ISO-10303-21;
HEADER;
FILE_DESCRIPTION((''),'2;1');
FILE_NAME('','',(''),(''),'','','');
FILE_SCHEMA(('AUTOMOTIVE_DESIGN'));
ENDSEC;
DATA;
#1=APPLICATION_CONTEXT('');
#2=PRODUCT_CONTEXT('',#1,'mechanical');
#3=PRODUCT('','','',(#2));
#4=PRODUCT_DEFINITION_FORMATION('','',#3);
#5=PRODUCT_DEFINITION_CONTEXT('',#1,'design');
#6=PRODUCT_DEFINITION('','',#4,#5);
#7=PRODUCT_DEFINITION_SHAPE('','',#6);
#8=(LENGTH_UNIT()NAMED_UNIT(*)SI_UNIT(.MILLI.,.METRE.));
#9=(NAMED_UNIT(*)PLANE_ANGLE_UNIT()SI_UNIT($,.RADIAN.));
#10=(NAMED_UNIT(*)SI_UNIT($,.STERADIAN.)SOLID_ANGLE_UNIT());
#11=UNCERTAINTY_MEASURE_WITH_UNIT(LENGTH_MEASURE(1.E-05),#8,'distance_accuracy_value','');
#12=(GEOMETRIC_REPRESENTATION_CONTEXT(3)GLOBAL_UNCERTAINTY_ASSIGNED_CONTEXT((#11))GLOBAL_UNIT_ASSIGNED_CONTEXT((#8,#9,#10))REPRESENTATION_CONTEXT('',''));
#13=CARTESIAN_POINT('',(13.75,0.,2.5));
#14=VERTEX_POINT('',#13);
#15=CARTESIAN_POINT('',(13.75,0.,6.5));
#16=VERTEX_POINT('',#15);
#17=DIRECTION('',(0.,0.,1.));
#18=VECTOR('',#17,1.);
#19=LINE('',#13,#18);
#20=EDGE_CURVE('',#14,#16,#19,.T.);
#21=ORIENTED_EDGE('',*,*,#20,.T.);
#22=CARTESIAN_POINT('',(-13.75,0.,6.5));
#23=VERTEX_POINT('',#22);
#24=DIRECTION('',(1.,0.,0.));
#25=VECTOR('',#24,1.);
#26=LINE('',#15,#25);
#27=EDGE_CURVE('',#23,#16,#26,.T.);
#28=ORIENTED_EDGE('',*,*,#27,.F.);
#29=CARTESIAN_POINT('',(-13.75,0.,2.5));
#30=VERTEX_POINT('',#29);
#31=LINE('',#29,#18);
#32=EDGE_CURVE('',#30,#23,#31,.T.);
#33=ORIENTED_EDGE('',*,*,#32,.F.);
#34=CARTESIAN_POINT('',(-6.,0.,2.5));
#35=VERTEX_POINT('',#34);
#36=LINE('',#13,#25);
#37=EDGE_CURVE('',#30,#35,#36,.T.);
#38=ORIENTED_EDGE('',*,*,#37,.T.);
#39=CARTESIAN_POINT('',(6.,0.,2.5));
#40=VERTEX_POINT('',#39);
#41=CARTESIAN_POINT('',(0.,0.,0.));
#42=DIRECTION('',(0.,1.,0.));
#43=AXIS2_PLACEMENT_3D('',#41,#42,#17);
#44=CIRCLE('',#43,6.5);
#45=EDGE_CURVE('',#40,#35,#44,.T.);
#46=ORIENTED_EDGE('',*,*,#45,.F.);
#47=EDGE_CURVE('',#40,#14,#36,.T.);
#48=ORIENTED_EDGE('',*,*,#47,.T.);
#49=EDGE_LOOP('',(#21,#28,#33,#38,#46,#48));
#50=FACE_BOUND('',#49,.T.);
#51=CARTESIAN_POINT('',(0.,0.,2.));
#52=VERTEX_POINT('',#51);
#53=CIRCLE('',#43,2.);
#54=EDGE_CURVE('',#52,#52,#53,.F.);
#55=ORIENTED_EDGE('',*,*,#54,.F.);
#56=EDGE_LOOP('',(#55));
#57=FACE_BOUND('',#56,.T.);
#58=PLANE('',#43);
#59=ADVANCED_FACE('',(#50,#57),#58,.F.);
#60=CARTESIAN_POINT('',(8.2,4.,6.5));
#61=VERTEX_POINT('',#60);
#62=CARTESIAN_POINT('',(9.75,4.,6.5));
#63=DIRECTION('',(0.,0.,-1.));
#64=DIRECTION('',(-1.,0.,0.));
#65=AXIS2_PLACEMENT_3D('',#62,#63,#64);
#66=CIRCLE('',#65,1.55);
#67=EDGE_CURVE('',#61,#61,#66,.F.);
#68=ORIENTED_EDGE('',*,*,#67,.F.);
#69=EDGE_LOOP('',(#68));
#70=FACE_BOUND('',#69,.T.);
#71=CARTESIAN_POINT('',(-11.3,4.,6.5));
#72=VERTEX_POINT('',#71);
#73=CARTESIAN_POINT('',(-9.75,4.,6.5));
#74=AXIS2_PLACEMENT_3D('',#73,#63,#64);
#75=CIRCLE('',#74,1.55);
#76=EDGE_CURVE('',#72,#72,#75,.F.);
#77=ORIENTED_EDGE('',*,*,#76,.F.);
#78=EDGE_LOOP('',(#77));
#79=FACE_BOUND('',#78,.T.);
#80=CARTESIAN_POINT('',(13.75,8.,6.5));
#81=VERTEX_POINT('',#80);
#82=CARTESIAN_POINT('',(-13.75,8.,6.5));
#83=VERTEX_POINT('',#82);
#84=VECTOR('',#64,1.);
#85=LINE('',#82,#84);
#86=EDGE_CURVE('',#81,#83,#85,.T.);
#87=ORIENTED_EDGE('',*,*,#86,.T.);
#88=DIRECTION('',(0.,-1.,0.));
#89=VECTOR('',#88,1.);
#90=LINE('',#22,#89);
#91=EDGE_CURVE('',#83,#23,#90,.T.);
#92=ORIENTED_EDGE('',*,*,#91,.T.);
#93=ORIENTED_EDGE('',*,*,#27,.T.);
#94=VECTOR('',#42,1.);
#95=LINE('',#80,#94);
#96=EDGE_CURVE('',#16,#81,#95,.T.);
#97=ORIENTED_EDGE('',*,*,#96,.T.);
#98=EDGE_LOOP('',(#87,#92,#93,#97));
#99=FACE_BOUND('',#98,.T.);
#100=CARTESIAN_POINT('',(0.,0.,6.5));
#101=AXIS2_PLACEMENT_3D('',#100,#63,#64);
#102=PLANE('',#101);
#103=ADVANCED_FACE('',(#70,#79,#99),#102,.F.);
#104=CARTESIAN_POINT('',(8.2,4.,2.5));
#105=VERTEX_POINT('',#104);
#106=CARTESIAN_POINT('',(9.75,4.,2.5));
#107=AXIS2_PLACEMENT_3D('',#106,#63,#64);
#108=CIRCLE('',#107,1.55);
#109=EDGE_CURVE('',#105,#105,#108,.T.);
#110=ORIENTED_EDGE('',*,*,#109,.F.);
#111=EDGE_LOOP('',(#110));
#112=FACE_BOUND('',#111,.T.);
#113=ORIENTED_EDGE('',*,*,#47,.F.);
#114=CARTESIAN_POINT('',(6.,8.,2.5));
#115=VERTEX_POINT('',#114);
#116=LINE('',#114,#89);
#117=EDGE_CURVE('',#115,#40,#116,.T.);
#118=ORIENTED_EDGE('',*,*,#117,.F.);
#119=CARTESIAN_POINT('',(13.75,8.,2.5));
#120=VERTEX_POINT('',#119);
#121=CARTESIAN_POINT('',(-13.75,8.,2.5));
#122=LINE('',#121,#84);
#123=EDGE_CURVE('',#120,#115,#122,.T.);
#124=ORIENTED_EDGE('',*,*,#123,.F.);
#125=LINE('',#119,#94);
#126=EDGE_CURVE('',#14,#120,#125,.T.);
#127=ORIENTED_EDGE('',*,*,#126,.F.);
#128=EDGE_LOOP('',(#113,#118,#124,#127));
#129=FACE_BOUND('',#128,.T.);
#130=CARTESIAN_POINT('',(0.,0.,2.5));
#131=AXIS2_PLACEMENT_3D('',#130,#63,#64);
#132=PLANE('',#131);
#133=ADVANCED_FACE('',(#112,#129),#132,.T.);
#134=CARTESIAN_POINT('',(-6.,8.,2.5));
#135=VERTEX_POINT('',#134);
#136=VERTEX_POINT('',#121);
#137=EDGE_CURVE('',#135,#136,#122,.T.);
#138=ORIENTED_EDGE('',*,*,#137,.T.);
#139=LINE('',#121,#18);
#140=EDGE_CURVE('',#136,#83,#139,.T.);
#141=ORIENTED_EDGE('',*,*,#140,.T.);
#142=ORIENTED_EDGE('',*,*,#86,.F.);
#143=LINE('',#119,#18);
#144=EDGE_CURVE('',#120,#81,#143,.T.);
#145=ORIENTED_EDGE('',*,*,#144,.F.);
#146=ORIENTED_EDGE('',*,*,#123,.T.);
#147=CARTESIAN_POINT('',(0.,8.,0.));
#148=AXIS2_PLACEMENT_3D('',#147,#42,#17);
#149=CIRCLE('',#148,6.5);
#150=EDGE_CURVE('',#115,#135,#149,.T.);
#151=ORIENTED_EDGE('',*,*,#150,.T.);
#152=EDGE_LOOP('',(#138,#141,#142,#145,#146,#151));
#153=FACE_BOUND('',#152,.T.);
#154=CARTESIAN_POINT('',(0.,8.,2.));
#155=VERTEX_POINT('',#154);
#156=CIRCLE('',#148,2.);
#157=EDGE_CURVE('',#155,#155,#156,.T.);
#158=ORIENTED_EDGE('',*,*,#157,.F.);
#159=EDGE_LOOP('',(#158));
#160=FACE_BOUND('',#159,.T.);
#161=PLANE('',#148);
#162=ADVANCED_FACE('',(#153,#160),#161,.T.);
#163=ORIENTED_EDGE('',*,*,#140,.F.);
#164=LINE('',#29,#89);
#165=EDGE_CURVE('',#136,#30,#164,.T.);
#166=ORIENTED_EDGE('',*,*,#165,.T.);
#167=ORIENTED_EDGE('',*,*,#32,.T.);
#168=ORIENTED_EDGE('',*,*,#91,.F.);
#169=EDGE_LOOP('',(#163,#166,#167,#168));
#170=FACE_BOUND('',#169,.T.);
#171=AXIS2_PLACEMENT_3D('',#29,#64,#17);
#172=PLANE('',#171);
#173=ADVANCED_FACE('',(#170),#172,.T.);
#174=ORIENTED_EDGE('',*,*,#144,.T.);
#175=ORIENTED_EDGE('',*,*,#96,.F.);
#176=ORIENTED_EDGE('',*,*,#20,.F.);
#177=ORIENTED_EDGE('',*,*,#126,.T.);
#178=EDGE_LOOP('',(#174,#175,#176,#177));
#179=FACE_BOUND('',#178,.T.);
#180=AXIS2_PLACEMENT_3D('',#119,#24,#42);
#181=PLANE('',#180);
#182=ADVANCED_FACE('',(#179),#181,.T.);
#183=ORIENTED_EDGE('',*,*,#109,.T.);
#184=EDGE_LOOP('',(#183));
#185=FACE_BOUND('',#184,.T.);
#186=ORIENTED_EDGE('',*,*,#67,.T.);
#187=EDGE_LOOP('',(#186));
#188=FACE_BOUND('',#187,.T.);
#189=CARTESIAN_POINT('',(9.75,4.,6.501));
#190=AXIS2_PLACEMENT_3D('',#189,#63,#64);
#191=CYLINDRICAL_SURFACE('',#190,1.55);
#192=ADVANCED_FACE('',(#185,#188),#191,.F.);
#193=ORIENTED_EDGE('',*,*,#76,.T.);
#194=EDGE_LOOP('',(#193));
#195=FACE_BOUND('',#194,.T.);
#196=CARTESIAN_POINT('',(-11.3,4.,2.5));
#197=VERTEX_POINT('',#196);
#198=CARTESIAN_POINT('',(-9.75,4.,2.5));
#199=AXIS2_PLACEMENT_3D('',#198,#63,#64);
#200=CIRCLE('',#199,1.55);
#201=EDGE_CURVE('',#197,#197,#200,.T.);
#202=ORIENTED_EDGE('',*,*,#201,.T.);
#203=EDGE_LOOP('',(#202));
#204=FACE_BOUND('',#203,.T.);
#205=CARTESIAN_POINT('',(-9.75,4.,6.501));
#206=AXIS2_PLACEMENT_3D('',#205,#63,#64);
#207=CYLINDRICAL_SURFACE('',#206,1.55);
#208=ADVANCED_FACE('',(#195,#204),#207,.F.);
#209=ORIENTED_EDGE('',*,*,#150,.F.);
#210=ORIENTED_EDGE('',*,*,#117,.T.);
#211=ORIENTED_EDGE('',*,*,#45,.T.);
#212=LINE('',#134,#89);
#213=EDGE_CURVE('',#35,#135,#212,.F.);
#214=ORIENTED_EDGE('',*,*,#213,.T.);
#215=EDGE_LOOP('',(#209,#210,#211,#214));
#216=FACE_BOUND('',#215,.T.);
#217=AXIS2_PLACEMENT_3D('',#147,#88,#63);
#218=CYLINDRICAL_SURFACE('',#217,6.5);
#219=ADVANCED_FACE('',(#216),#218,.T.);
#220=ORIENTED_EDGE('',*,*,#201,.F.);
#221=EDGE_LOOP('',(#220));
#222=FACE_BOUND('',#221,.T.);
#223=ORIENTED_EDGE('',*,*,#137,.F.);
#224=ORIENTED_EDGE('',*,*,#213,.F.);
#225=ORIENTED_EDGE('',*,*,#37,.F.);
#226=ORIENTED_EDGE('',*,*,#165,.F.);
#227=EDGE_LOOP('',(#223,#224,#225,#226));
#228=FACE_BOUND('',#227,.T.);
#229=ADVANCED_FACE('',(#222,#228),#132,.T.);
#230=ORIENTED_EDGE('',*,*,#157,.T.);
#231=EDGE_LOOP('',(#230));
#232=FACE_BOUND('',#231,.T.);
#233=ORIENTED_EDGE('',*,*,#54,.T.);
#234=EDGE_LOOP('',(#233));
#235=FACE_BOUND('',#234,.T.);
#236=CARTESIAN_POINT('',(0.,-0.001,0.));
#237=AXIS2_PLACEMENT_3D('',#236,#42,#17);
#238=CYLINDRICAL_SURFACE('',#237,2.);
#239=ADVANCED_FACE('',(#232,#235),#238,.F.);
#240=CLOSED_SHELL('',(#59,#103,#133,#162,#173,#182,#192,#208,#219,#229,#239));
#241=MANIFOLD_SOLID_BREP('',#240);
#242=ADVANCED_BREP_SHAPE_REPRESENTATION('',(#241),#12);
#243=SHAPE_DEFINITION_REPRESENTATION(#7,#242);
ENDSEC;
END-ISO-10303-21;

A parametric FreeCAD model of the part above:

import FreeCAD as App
import Part
import Sketcher
Q = App.Units.Quantity

doc = App.newDocument("Part")
params = doc.addObject("Spreadsheet::Sheet", "Params")
for row, (alias, value) in enumerate([
    ("sketch1_diameter", "13 mm"),
    ("pad1_length", "8 mm"),
    ("sketch2_height", "8 mm"),
    ("sketch2_width", "27.5 mm"),
    ("pad2_length", "4 mm"),
    ("sketch3_diameter", "4 mm"),
    ("sketch4_diameter", "3.1 mm"),
    ("sketch5_diameter", "3.1 mm"),
], start=1):
    params.set(f"A{row}", alias)
    params.set(f"B{row}", "=" + value)
    params.setAlias(f"B{row}", alias)

body = doc.addObject("PartDesign::Body", "Body")

# Sketch on XZ plane
sketch1 = body.newObject("Sketcher::SketchObject", "Sketch")
sketch1.AttachmentSupport = (doc.getObject("XZ_Plane"), [""])
sketch1.MapMode = "FlatFace"
sketch1.addGeometry(Part.Circle(App.Vector(0, 0, 0), App.Vector(0, 0, 1), 6), False)
sketch1.addConstraint(Sketcher.Constraint("Coincident", 0, 3, -1, 1))
sketch1.addConstraint(Sketcher.Constraint("Diameter", 0, Q("13 mm")))
sketch1.setExpression("Constraints[1]", "Params.sketch1_diameter")
pad1 = body.newObject("PartDesign::Pad", "Pad")
pad1.Profile = sketch1
pad1.setExpression("Length", "Params.pad1_length")
pad1.Reversed = True

# Sketch on XY plane
sketch2 = body.newObject("Sketcher::SketchObject", "Sketch001")
sketch2.AttachmentSupport = (doc.getObject("XY_Plane"), [""])
sketch2.MapMode = "FlatFace"
sketch2.AttachmentOffset = App.Placement(App.Vector(0, 0, 6.5), App.Rotation())
sketch2.addGeometry(Part.LineSegment(App.Vector(-14, 8, 0), App.Vector(-14, 0, 0)), False)
sketch2.addGeometry(Part.LineSegment(App.Vector(-14, 0, 0), App.Vector(14, 0, 0)), False)
sketch2.addGeometry(Part.LineSegment(App.Vector(14, 0, 0), App.Vector(14, 8, 0)), False)
sketch2.addGeometry(Part.LineSegment(App.Vector(14, 8, 0), App.Vector(-14, 8, 0)), False)
sketch2.addConstraint(Sketcher.Constraint("Coincident", 0, 2, 1, 1))
sketch2.addConstraint(Sketcher.Constraint("Coincident", 1, 2, 2, 1))
sketch2.addConstraint(Sketcher.Constraint("Coincident", 2, 2, 3, 1))
sketch2.addConstraint(Sketcher.Constraint("Coincident", 3, 2, 0, 1))
sketch2.addConstraint(Sketcher.Constraint("Vertical", 0))
sketch2.addConstraint(Sketcher.Constraint("Horizontal", 1))
sketch2.addConstraint(Sketcher.Constraint("Vertical", 2))
sketch2.addConstraint(Sketcher.Constraint("Horizontal", 3))
sketch2.addConstraint(Sketcher.Constraint("Symmetric", 0, 2, 1, 2, -1, 1))
sketch2.addConstraint(Sketcher.Constraint("DistanceY", 0, 2, 0, 1, Q("8 mm")))
sketch2.addConstraint(Sketcher.Constraint("DistanceX", 1, 1, 1, 2, Q("27.5 mm")))
sketch2.setExpression("Constraints[9]", "Params.sketch2_height")
sketch2.setExpression("Constraints[10]", "Params.sketch2_width")
pad2 = body.newObject("PartDesign::Pad", "Pad001")
pad2.Profile = sketch2
pad2.setExpression("Length", "Params.pad2_length")
pad2.Reversed = True

# Sketch on XZ plane
sketch3 = body.newObject("Sketcher::SketchObject", "Sketch002")
sketch3.AttachmentSupport = (doc.getObject("XZ_Plane"), [""])
sketch3.MapMode = "FlatFace"
sketch3.AttachmentOffset = App.Placement(App.Vector(0, 0, -8), App.Rotation())
sketch3.addGeometry(Part.Circle(App.Vector(0, 0, 0), App.Vector(0, 0, 1), 2), False)
sketch3.addConstraint(Sketcher.Constraint("Coincident", 0, 3, -1, 1))
sketch3.addConstraint(Sketcher.Constraint("Diameter", 0, Q("4 mm")))
sketch3.setExpression("Constraints[1]", "Params.sketch3_diameter")
pocket1 = body.newObject("PartDesign::Pocket", "Pocket")
pocket1.Profile = sketch3
pocket1.Type = "UpToFirst"
pocket1.Reversed = True

# Sketch on XY plane
sketch4 = body.newObject("Sketcher::SketchObject", "Sketch003")
sketch4.AttachmentSupport = (doc.getObject("XY_Plane"), [""])
sketch4.MapMode = "FlatFace"
sketch4.AttachmentOffset = App.Placement(App.Vector(0, 0, 2.5), App.Rotation())
sketch4.addGeometry(Part.Circle(App.Vector(-9.8, 4, 0), App.Vector(0, 0, 1), 1.6), False)
sketch4.addConstraint(Sketcher.Constraint("Diameter", 0, Q("3.1 mm")))
sketch4.addConstraint(Sketcher.Constraint("DistanceY", -1, 1, 0, 3, Q("4 mm")))
sketch4.addConstraint(Sketcher.Constraint("DistanceX", 0, 3, -1, 1, Q("9.75 mm")))
sketch4.setExpression("Constraints[0]", "Params.sketch4_diameter")
pocket2 = body.newObject("PartDesign::Pocket", "Pocket001")
pocket2.Profile = sketch4
pocket2.Type = "UpToFirst"
pocket2.Reversed = True

# Sketch on XY plane
sketch5 = body.newObject("Sketcher::SketchObject", "Sketch004")
sketch5.AttachmentSupport = (doc.getObject("XY_Plane"), [""])
sketch5.MapMode = "FlatFace"
sketch5.AttachmentOffset = App.Placement(App.Vector(0, 0, 2.5), App.Rotation())
sketch5.addGeometry(Part.Circle(App.Vector(9.8, 4, 0), App.Vector(0, 0, 1), 1.6), False)
sketch5.addConstraint(Sketcher.Constraint("Diameter", 0, Q("3.1 mm")))
sketch5.addConstraint(Sketcher.Constraint("DistanceY", -1, 1, 0, 3, Q("4 mm")))
sketch5.addConstraint(Sketcher.Constraint("DistanceX", -1, 1, 0, 3, Q("9.75 mm")))
sketch5.setExpression("Constraints[0]", "Params.sketch5_diameter")
pocket3 = body.newObject("PartDesign::Pocket", "Pocket002")
pocket3.Profile = sketch5
pocket3.Type = "UpToFirst"
pocket3.Reversed = True

doc.recompute()
